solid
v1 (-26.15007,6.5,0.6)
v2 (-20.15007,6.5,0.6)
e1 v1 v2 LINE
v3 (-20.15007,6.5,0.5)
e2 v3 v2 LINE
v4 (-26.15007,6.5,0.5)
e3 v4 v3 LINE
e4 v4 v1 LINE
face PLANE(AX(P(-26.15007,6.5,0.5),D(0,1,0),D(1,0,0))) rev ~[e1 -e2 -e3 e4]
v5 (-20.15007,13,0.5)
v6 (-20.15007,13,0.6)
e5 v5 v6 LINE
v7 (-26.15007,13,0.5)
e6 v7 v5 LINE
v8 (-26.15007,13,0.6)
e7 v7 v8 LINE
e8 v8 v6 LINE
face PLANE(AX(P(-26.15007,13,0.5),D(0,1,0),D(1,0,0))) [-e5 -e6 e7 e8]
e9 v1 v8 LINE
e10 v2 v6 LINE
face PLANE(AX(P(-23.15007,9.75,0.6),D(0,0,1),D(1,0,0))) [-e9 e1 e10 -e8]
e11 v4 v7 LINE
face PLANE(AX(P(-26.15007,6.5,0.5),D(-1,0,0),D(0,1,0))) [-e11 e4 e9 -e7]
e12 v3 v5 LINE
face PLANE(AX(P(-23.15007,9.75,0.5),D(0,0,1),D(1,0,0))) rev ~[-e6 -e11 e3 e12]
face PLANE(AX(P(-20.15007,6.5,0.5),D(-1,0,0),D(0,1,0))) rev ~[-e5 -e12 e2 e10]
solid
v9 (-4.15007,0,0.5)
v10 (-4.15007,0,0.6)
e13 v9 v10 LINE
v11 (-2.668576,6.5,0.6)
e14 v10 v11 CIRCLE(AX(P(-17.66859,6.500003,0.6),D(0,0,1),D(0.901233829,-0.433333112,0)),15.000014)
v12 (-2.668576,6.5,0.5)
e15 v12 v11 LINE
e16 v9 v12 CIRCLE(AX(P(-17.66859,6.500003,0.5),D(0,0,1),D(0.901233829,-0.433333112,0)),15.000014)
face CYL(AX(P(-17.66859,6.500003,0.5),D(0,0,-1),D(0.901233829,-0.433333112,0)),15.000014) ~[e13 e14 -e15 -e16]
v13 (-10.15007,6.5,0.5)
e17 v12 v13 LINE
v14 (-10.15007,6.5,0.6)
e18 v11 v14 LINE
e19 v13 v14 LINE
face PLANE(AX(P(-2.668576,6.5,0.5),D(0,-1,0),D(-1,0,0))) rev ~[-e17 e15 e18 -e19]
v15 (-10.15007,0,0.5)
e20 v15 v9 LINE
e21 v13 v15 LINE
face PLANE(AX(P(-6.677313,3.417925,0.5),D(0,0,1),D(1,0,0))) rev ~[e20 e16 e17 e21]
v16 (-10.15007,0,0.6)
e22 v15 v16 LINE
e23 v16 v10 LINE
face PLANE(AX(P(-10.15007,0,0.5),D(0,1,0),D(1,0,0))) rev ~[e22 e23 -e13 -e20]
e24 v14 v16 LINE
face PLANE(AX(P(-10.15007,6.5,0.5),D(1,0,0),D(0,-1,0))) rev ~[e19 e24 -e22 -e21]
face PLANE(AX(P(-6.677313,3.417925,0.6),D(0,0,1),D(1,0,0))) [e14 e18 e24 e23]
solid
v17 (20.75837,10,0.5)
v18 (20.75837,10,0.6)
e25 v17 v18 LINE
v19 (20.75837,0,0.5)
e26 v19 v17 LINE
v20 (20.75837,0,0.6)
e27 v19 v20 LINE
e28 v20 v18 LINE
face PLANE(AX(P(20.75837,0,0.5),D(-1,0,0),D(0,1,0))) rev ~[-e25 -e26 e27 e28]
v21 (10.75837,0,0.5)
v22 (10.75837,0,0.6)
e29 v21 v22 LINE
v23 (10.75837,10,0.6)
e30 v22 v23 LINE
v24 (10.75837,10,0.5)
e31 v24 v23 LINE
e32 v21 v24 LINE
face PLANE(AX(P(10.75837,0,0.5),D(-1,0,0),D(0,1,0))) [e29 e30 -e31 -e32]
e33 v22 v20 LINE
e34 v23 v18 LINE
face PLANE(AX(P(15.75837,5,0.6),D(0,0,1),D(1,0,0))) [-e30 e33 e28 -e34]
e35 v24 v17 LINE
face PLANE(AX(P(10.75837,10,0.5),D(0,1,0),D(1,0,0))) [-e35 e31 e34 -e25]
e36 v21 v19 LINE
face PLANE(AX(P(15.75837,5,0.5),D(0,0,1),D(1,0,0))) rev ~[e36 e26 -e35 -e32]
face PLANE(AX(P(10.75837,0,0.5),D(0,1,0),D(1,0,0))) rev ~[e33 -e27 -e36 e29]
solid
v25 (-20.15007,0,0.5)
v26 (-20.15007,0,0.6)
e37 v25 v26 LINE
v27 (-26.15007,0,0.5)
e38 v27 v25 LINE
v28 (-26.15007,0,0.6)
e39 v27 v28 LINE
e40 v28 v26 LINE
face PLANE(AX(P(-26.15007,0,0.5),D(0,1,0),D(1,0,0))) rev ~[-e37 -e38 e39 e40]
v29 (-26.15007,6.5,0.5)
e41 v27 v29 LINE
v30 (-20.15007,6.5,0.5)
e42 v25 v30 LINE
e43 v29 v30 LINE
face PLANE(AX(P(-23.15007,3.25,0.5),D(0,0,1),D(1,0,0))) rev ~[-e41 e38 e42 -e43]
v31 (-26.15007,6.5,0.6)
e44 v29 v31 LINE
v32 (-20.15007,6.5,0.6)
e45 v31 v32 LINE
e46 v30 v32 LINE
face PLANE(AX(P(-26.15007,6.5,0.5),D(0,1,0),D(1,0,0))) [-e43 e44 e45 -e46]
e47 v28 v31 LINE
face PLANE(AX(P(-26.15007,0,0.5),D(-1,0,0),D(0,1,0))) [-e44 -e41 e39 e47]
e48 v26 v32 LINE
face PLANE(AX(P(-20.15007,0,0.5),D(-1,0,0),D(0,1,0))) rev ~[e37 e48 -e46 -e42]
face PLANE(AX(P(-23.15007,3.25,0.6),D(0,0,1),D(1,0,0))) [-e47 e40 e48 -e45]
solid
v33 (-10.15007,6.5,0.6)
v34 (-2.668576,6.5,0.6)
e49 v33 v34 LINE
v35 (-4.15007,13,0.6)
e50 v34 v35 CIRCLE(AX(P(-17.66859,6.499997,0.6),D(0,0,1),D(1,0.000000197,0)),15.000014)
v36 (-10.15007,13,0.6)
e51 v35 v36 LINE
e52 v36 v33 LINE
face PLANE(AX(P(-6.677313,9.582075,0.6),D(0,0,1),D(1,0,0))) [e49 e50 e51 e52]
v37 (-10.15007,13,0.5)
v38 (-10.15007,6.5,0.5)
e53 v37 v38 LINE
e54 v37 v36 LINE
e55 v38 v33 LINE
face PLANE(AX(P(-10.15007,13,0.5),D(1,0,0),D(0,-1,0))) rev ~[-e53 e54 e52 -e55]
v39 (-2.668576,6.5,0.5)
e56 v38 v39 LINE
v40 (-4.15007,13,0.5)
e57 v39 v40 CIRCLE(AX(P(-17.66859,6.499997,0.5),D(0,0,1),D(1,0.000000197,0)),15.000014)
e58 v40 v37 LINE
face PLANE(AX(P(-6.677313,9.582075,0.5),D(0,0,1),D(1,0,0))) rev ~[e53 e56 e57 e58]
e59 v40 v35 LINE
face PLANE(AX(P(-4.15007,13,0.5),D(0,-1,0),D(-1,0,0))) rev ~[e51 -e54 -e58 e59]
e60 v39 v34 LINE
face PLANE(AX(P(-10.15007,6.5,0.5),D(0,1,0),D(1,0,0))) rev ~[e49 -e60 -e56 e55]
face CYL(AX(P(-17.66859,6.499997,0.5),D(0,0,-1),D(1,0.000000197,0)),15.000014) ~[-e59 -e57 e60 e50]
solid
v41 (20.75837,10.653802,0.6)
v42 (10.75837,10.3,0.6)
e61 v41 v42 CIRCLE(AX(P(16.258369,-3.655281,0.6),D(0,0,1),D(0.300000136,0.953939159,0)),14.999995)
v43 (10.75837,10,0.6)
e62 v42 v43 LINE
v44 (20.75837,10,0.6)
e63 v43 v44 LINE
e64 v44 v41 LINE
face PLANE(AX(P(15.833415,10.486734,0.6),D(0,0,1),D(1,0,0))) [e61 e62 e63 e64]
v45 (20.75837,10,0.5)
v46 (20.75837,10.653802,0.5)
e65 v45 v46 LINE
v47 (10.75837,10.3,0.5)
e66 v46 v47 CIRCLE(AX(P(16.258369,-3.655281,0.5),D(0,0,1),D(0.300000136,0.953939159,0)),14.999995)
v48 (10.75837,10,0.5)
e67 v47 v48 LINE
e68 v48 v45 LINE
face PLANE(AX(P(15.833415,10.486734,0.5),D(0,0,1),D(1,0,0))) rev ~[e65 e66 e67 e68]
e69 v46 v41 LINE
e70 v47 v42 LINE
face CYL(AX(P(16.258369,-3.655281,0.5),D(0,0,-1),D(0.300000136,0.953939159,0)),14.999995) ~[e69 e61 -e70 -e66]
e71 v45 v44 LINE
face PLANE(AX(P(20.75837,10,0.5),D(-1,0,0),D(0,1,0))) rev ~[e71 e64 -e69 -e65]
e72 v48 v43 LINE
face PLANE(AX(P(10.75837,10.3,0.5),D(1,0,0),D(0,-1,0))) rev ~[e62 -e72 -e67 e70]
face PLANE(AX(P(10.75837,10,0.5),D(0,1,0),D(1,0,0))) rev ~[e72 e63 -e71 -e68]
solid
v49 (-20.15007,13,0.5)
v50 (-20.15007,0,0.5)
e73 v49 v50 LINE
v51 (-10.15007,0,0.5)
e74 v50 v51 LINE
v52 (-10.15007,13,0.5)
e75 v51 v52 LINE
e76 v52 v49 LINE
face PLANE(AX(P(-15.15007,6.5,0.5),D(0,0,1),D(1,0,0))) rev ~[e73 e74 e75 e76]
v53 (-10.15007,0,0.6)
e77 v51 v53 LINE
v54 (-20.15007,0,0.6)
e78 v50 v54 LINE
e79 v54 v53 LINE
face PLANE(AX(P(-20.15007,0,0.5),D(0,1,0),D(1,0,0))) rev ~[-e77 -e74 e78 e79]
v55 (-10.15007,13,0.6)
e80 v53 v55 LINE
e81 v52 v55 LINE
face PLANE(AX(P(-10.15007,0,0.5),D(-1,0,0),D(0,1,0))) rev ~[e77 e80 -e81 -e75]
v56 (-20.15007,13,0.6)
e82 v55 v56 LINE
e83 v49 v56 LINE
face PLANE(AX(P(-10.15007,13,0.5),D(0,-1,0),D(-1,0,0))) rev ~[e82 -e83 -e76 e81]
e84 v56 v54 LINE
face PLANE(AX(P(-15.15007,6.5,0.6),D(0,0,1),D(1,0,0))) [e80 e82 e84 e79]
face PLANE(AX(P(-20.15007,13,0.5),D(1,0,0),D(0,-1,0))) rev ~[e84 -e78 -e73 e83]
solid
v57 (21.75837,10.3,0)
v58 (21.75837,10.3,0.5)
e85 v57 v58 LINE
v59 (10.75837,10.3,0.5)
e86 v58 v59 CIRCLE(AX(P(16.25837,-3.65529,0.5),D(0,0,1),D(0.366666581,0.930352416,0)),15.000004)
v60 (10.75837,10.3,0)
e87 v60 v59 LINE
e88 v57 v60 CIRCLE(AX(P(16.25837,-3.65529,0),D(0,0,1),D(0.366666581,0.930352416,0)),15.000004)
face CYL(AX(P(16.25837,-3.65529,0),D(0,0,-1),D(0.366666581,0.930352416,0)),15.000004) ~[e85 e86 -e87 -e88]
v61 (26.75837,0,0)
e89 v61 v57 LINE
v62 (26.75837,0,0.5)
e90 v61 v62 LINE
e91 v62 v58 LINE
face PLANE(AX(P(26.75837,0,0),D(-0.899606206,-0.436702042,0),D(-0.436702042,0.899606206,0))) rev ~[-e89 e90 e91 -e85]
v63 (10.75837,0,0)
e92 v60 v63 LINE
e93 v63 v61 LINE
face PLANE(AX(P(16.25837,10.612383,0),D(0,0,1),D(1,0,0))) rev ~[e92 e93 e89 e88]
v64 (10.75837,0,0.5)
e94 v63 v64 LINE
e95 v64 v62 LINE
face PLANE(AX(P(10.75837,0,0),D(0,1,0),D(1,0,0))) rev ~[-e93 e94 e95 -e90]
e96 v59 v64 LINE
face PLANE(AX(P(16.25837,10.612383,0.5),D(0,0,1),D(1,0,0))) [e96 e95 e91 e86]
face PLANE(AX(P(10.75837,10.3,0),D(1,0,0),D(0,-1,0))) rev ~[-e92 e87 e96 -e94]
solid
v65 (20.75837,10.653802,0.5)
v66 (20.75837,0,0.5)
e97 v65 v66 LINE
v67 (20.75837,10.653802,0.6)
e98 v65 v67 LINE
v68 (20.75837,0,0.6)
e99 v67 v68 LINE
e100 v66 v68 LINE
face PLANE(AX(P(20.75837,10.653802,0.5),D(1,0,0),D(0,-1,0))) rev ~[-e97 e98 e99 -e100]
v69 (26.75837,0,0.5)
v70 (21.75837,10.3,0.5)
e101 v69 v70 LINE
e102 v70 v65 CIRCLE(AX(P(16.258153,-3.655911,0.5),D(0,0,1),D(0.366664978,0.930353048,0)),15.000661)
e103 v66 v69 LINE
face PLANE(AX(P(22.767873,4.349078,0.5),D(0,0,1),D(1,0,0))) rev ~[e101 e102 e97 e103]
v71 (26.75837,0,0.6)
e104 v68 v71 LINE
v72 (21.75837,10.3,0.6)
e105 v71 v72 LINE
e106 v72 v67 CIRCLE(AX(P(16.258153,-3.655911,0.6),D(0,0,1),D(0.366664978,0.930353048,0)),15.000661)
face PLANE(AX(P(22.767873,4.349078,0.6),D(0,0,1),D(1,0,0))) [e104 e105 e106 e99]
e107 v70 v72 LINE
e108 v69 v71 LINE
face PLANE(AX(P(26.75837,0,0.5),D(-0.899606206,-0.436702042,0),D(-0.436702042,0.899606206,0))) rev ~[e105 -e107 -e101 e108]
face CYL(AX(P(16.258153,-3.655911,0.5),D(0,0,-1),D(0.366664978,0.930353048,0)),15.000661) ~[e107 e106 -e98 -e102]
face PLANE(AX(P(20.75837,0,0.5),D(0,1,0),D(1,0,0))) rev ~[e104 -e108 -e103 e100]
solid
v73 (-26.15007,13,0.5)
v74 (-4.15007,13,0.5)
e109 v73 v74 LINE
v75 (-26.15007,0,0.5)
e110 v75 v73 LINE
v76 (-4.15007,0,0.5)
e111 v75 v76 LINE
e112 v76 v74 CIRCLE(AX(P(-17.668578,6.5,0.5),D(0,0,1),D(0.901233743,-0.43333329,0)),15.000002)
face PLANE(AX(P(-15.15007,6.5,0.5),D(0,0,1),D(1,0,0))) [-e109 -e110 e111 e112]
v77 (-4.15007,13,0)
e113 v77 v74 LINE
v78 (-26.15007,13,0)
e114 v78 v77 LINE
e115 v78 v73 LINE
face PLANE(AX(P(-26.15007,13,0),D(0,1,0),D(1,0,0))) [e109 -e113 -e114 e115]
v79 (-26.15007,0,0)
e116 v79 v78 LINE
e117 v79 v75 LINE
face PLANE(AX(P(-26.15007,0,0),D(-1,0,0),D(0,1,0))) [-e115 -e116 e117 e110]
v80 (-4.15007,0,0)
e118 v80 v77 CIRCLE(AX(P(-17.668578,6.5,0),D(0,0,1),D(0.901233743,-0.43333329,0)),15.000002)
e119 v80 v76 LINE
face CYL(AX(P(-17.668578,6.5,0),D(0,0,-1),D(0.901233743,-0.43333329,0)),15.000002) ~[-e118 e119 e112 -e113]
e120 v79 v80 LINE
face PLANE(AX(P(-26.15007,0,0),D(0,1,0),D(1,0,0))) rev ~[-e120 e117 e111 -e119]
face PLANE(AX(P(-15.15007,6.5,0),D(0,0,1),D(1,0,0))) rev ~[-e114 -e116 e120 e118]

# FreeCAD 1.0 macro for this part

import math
import FreeCAD as App
import Part
import Sketcher

V = App.Vector
Q = App.Units.Quantity


def add_polygon(sketch, points):
    """Adds a closed chain of lines whose ends are joined by coincident constraints."""
    first, n = sketch.GeometryCount, len(points)
    for a, b in zip(points, points[1:] + points[:1]):
        sketch.addGeometry(Part.LineSegment(App.Vector(*a, 0), App.Vector(*b, 0)), False)
    for i in range(n):
        sketch.addConstraint(Sketcher.Constraint("Coincident", first + i, 2, first + (i + 1) % n, 1))

doc = App.newDocument("Part")
body = doc.addObject("PartDesign::Body", "Body")
body.AllowCompound = True

sketch1 = body.newObject("Sketcher::SketchObject", "Sketch")
sketch1.AttachmentSupport = (doc.getObject("XY_Plane"), [""])
sketch1.MapMode = "FlatFace"
sketch1.addGeometry([
    Part.LineSegment(V(-26, 13, 0), V(-26, 0, 0)),
    Part.LineSegment(V(-26, 0, 0), V(-4, 0, 0)),
    Part.ArcOfCircle(Part.Circle(V(-18, 6, 0), V(0, 0, 1), 15), math.radians(-26), math.radians(26)),
    Part.LineSegment(V(-4, 13, 0), V(-26, 13, 0)),
    Part.ArcOfCircle(Part.Circle(V(16, -4, 0), V(0, 0, 1), 15), math.radians(68), math.radians(112)),
    Part.LineSegment(V(11, 10, 0), V(11, 0, 0)),
    Part.LineSegment(V(11, 0, 0), V(27, 0, 0)),
    Part.LineSegment(V(27, 0, 0), V(22, 10, 0)),
], False)
sketch1.addConstraint([
    Sketcher.Constraint("Coincident", 0, 2, 1, 1),
    Sketcher.Constraint("Coincident", 1, 2, 2, 1),
    Sketcher.Constraint("Coincident", 2, 2, 3, 1),
    Sketcher.Constraint("Coincident", 3, 2, 0, 1),
    Sketcher.Constraint("Coincident", 4, 2, 5, 1),
    Sketcher.Constraint("Coincident", 5, 2, 6, 1),
    Sketcher.Constraint("Coincident", 6, 2, 7, 1),
    Sketcher.Constraint("Coincident", 7, 2, 4, 1),
    Sketcher.Constraint("Vertical", 0),
    Sketcher.Constraint("Horizontal", 1),
    Sketcher.Constraint("Horizontal", 3),
    Sketcher.Constraint("Vertical", 5),
    Sketcher.Constraint("Horizontal", 6),
    Sketcher.Constraint("PointOnObject", 0, 2, -1),
    Sketcher.Constraint("PointOnObject", 5, 2, -1),
    Sketcher.Constraint("Horizontal", 4, 2, 7, 2),
    Sketcher.Constraint("Vertical", 1, 2, 2, 2),
    Sketcher.Constraint("Radius", 2, Q("15.000002 mm")),
    Sketcher.Constraint("DistanceX", 1, 1, 1, 2, Q("22 mm")),
    Sketcher.Constraint("DistanceX", 6, 1, 6, 2, Q("16 mm")),
    Sketcher.Constraint("DistanceY", 0, 2, 0, 1, Q("13 mm")),
    Sketcher.Constraint("DistanceY", 5, 2, 5, 1, Q("10.3 mm")),
    Sketcher.Constraint("DistanceX", 4, 2, 7, 2, Q("11 mm")),
    Sketcher.Constraint("Radius", 4, Q("15.000004 mm")),
    Sketcher.Constraint("DistanceX", -1, 1, 4, 3, Q("16.25837 mm")),
    Sketcher.Constraint("DistanceX", 0, 2, -1, 1, Q("26.15007 mm")),
])
pad1 = body.newObject("PartDesign::Pad", "Pad")
pad1.Profile = sketch1
pad1.Length = 0.5
body2 = doc.addObject("PartDesign::Body", "Body001")

sketch2 = body2.newObject("Sketcher::SketchObject", "Sketch001")
sketch2.AttachmentSupport = (doc.getObject("XY_Plane001"), [""])
sketch2.MapMode = "FlatFace"
sketch2.AttachmentOffset = App.Placement(V(0, 0, 0.5), App.Rotation())
add_polygon(sketch2, [(-26, 6), (-26, 0), (-20, 0), (-20, 6)])
sketch2.addConstraint([
    Sketcher.Constraint("Vertical", 0),
    Sketcher.Constraint("Horizontal", 1),
    Sketcher.Constraint("Vertical", 2),
    Sketcher.Constraint("Horizontal", 3),
    Sketcher.Constraint("PointOnObject", 0, 2, -1),
    Sketcher.Constraint("DistanceX", 1, 1, 1, 2, Q("6 mm")),
    Sketcher.Constraint("DistanceY", 0, 2, 0, 1, Q("6.5 mm")),
    Sketcher.Constraint("DistanceX", 0, 2, -1, 1, Q("26.15007 mm")),
])
pad2 = body2.newObject("PartDesign::Pad", "Pad001")
pad2.Profile = sketch2
pad2.Length = 0.1
body3 = doc.addObject("PartDesign::Body", "Body002")

sketch3 = body3.newObject("Sketcher::SketchObject", "Sketch002")
sketch3.AttachmentSupport = (doc.getObject("XY_Plane002"), [""])
sketch3.MapMode = "FlatFace"
sketch3.AttachmentOffset = App.Placement(V(0, 0, 0.5), App.Rotation())
add_polygon(sketch3, [(-26, 13), (-26, 6), (-20, 6), (-20, 13)])
sketch3.addConstraint([
    Sketcher.Constraint("Vertical", 0),
    Sketcher.Constraint("Horizontal", 1),
    Sketcher.Constraint("Vertical", 2),
    Sketcher.Constraint("Horizontal", 3),
    Sketcher.Constraint("DistanceX", 1, 1, 1, 2, Q("6 mm")),
    Sketcher.Constraint("DistanceY", 0, 2, 0, 1, Q("6.5 mm")),
    Sketcher.Constraint("DistanceY", -1, 1, 2, 2, Q("13 mm")),
    Sketcher.Constraint("DistanceX", 0, 2, -1, 1, Q("26.15007 mm")),
])
pad3 = body3.newObject("PartDesign::Pad", "Pad002")
pad3.Profile = sketch3
pad3.Length = 0.1
body4 = doc.addObject("PartDesign::Body", "Body003")

sketch4 = body4.newObject("Sketcher::SketchObject", "Sketch003")
sketch4.AttachmentSupport = (doc.getObject("XY_Plane003"), [""])
sketch4.MapMode = "FlatFace"
sketch4.AttachmentOffset = App.Placement(V(0, 0, 0.5), App.Rotation())
add_polygon(sketch4, [(-20, 0), (-10, 0), (-10, 13), (-20, 13)])
sketch4.addConstraint([
    Sketcher.Constraint("Horizontal", 0),
    Sketcher.Constraint("Vertical", 1),
    Sketcher.Constraint("Horizontal", 2),
    Sketcher.Constraint("Vertical", 3),
    Sketcher.Constraint("PointOnObject", 0, 2, -1),
    Sketcher.Constraint("DistanceX", 0, 1, 0, 2, Q("10 mm")),
    Sketcher.Constraint("DistanceY", 1, 1, 1, 2, Q("13 mm")),
    Sketcher.Constraint("DistanceX", 0, 2, -1, 1, Q("10.15007 mm")),
])
pad4 = body4.newObject("PartDesign::Pad", "Pad003")
pad4.Profile = sketch4
pad4.Length = 0.1
body5 = doc.addObject("PartDesign::Body", "Body004")

sketch5 = body5.newObject("Sketcher::SketchObject", "Sketch004")
sketch5.AttachmentSupport = (doc.getObject("XY_Plane004"), [""])
sketch5.MapMode = "FlatFace"
sketch5.AttachmentOffset = App.Placement(V(0, 0, 0.5), App.Rotation())
sketch5.addGeometry([
    Part.LineSegment(V(-10, 6, 0), V(-10, 0, 0)),
    Part.LineSegment(V(-10, 0, 0), V(-4, 0, 0)),
    Part.ArcOfCircle(Part.Circle(V(-18, 7, 0), V(0, 0, 1), 15), math.radians(-26), math.radians(0)),
    Part.LineSegment(V(-3, 6, 0), V(-10, 6, 0)),
], False)
sketch5.addConstraint([
    Sketcher.Constraint("Coincident", 0, 2, 1, 1),
    Sketcher.Constraint("Coincident", 1, 2, 2, 1),
    Sketcher.Constraint("Coincident", 2, 2, 3, 1),
    Sketcher.Constraint("Coincident", 3, 2, 0, 1),
    Sketcher.Constraint("Vertical", 0),
    Sketcher.Constraint("Horizontal", 1),
    Sketcher.Constraint("Horizontal", 3),
    Sketcher.Constraint("PointOnObject", 0, 2, -1),
    Sketcher.Constraint("DistanceX", 1, 1, 1, 2, Q("6 mm")),
    Sketcher.Constraint("DistanceY", 0, 2, 0, 1, Q("6.5 mm")),
    Sketcher.Constraint("Radius", 2, Q("15.000014 mm")),
    Sketcher.Constraint("DistanceX", 3, 2, 3, 1, Q("7.481494 mm")),
    Sketcher.Constraint("DistanceX", 2, 3, -1, 1, Q("17.66859 mm")),
])
pad5 = body5.newObject("PartDesign::Pad", "Pad004")
pad5.Profile = sketch5
pad5.Length = 0.1
body6 = doc.addObject("PartDesign::Body", "Body005")

sketch6 = body6.newObject("Sketcher::SketchObject", "Sketch005")
sketch6.AttachmentSupport = (doc.getObject("XY_Plane005"), [""])
sketch6.MapMode = "FlatFace"
sketch6.AttachmentOffset = App.Placement(V(0, 0, 0.5), App.Rotation())
sketch6.addGeometry([
    Part.LineSegment(V(-10, 13, 0), V(-10, 6, 0)),
    Part.LineSegment(V(-10, 6, 0), V(-3, 6, 0)),
    Part.ArcOfCircle(Part.Circle(V(-18, 6, 0), V(0, 0, 1), 15), math.radians(0), math.radians(26)),
    Part.LineSegment(V(-4, 13, 0), V(-10, 13, 0)),
], False)
sketch6.addConstraint([
    Sketcher.Constraint("Coincident", 0, 2, 1, 1),
    Sketcher.Constraint("Coincident", 1, 2, 2, 1),
    Sketcher.Constraint("Coincident", 2, 2, 3, 1),
    Sketcher.Constraint("Coincident", 3, 2, 0, 1),
    Sketcher.Constraint("Vertical", 0),
    Sketcher.Constraint("Horizontal", 1),
    Sketcher.Constraint("Horizontal", 3),
    Sketcher.Constraint("DistanceX", 3, 2, 3, 1, Q("6 mm")),
    Sketcher.Constraint("DistanceY", 0, 2, 0, 1, Q("6.5 mm")),
    Sketcher.Constraint("DistanceY", -1, 1, 2, 2, Q("13 mm")),
    Sketcher.Constraint("Radius", 2, Q("15.000014 mm")),
    Sketcher.Constraint("DistanceX", 1, 1, 1, 2, Q("7.481494 mm")),
    Sketcher.Constraint("DistanceX", 2, 3, -1, 1, Q("17.66859 mm")),
])
pad6 = body6.newObject("PartDesign::Pad", "Pad005")
pad6.Profile = sketch6
pad6.Length = 0.1
body7 = doc.addObject("PartDesign::Body", "Body006")

sketch7 = body7.newObject("Sketcher::SketchObject", "Sketch006")
sketch7.AttachmentSupport = (doc.getObject("XY_Plane006"), [""])
sketch7.MapMode = "FlatFace"
sketch7.AttachmentOffset = App.Placement(V(0, 0, 0.5), App.Rotation())
add_polygon(sketch7, [(11, 10), (11, 0), (21, 0), (21, 10)])
sketch7.addConstraint([
    Sketcher.Constraint("Vertical", 0),
    Sketcher.Constraint("Horizontal", 1),
    Sketcher.Constraint("Vertical", 2),
    Sketcher.Constraint("Horizontal", 3),
    Sketcher.Constraint("PointOnObject", 0, 2, -1),
    Sketcher.Constraint("Equal", 3, 0),
    Sketcher.Constraint("DistanceX", 1, 1, 1, 2, Q("10 mm")),
    Sketcher.Constraint("DistanceX", -1, 1, 0, 2, Q("10.75837 mm")),
])
pad7 = body7.newObject("PartDesign::Pad", "Pad006")
pad7.Profile = sketch7
pad7.Length = 0.1
body8 = doc.addObject("PartDesign::Body", "Body007")

sketch8 = body8.newObject("Sketcher::SketchObject", "Sketch007")
sketch8.AttachmentSupport = (doc.getObject("XY_Plane007"), [""])
sketch8.MapMode = "FlatFace"
sketch8.AttachmentOffset = App.Placement(V(0, 0, 0.5), App.Rotation())
sketch8.addGeometry([
    Part.LineSegment(V(20.8, 0, 0), V(26.8, 0, 0)),
    Part.LineSegment(V(26.8, 0, 0), V(21.8, 10.3, 0)),
    Part.ArcOfCircle(Part.Circle(V(16.3, -3.7, 0), V(0, 0, 1), 15), math.radians(68.49), math.radians(72.54)),
    Part.LineSegment(V(20.8, 10.7, 0), V(20.8, 0, 0)),
], False)
sketch8.addConstraint([
    Sketcher.Constraint("Coincident", 0, 2, 1, 1),
    Sketcher.Constraint("Coincident", 1, 2, 2, 1),
    Sketcher.Constraint("Coincident", 2, 2, 3, 1),
    Sketcher.Constraint("Coincident", 3, 2, 0, 1),
    Sketcher.Constraint("Horizontal", 0),
    Sketcher.Constraint("Vertical", 3),
    Sketcher.Constraint("PointOnObject", 0, 2, -1),
    Sketcher.Constraint("DistanceX", 0, 1, 0, 2, Q("6 mm")),
    Sketcher.Constraint("DistanceX", 1, 2, 0, 2, Q("5 mm")),
    Sketcher.Constraint("DistanceY", -1, 1, 1, 2, Q("10.3 mm")),
    Sketcher.Constraint("Radius", 2, Q("15.000661 mm")),
    Sketcher.Constraint("DistanceY", 3, 2, 3, 1, Q("10.653802 mm")),
    Sketcher.Constraint("DistanceX", -1, 1, 0, 2, Q("26.75837 mm")),
])
pad8 = body8.newObject("PartDesign::Pad", "Pad007")
pad8.Profile = sketch8
pad8.Length = 0.1
body9 = doc.addObject("PartDesign::Body", "Body008")

sketch9 = body9.newObject("Sketcher::SketchObject", "Sketch008")
sketch9.AttachmentSupport = (doc.getObject("XY_Plane008"), [""])
sketch9.MapMode = "FlatFace"
sketch9.AttachmentOffset = App.Placement(V(0, 0, 0.5), App.Rotation())
sketch9.addGeometry([
    Part.LineSegment(V(10.76, 10.3, 0), V(10.76, 10, 0)),
    Part.LineSegment(V(10.76, 10, 0), V(20.76, 10, 0)),
    Part.LineSegment(V(20.76, 10, 0), V(20.76, 10.65, 0)),
    Part.ArcOfCircle(Part.Circle(V(16.26, -3.66, 0), V(0, 0, 1), 15), math.radians(73), math.radians(112)),
], False)
sketch9.addConstraint([
    Sketcher.Constraint("Coincident", 0, 2, 1, 1),
    Sketcher.Constraint("Coincident", 1, 2, 2, 1),
    Sketcher.Constraint("Coincident", 2, 2, 3, 1),
    Sketcher.Constraint("Coincident", 3, 2, 0, 1),
    Sketcher.Constraint("Vertical", 0),
    Sketcher.Constraint("Horizontal", 1),
    Sketcher.Constraint("Vertical", 2),
    Sketcher.Constraint("DistanceX", 1, 1, 1, 2, Q("10 mm")),
    Sketcher.Constraint("DistanceY", 0, 2, 0, 1, Q("0.3 mm")),
    Sketcher.Constraint("DistanceY", -1, 1, 0, 2, Q("10 mm")),
    Sketcher.Constraint("DistanceX", 0, 2, 3, 3, Q("5.499999 mm")),
    Sketcher.Constraint("Radius", 3, Q("14.999995 mm")),
    Sketcher.Constraint("DistanceX", -1, 1, 3, 3, Q("16.258369 mm")),
])
pad9 = body9.newObject("PartDesign::Pad", "Pad008")
pad9.Profile = sketch9
pad9.Length = 0.1

doc.recompute()
